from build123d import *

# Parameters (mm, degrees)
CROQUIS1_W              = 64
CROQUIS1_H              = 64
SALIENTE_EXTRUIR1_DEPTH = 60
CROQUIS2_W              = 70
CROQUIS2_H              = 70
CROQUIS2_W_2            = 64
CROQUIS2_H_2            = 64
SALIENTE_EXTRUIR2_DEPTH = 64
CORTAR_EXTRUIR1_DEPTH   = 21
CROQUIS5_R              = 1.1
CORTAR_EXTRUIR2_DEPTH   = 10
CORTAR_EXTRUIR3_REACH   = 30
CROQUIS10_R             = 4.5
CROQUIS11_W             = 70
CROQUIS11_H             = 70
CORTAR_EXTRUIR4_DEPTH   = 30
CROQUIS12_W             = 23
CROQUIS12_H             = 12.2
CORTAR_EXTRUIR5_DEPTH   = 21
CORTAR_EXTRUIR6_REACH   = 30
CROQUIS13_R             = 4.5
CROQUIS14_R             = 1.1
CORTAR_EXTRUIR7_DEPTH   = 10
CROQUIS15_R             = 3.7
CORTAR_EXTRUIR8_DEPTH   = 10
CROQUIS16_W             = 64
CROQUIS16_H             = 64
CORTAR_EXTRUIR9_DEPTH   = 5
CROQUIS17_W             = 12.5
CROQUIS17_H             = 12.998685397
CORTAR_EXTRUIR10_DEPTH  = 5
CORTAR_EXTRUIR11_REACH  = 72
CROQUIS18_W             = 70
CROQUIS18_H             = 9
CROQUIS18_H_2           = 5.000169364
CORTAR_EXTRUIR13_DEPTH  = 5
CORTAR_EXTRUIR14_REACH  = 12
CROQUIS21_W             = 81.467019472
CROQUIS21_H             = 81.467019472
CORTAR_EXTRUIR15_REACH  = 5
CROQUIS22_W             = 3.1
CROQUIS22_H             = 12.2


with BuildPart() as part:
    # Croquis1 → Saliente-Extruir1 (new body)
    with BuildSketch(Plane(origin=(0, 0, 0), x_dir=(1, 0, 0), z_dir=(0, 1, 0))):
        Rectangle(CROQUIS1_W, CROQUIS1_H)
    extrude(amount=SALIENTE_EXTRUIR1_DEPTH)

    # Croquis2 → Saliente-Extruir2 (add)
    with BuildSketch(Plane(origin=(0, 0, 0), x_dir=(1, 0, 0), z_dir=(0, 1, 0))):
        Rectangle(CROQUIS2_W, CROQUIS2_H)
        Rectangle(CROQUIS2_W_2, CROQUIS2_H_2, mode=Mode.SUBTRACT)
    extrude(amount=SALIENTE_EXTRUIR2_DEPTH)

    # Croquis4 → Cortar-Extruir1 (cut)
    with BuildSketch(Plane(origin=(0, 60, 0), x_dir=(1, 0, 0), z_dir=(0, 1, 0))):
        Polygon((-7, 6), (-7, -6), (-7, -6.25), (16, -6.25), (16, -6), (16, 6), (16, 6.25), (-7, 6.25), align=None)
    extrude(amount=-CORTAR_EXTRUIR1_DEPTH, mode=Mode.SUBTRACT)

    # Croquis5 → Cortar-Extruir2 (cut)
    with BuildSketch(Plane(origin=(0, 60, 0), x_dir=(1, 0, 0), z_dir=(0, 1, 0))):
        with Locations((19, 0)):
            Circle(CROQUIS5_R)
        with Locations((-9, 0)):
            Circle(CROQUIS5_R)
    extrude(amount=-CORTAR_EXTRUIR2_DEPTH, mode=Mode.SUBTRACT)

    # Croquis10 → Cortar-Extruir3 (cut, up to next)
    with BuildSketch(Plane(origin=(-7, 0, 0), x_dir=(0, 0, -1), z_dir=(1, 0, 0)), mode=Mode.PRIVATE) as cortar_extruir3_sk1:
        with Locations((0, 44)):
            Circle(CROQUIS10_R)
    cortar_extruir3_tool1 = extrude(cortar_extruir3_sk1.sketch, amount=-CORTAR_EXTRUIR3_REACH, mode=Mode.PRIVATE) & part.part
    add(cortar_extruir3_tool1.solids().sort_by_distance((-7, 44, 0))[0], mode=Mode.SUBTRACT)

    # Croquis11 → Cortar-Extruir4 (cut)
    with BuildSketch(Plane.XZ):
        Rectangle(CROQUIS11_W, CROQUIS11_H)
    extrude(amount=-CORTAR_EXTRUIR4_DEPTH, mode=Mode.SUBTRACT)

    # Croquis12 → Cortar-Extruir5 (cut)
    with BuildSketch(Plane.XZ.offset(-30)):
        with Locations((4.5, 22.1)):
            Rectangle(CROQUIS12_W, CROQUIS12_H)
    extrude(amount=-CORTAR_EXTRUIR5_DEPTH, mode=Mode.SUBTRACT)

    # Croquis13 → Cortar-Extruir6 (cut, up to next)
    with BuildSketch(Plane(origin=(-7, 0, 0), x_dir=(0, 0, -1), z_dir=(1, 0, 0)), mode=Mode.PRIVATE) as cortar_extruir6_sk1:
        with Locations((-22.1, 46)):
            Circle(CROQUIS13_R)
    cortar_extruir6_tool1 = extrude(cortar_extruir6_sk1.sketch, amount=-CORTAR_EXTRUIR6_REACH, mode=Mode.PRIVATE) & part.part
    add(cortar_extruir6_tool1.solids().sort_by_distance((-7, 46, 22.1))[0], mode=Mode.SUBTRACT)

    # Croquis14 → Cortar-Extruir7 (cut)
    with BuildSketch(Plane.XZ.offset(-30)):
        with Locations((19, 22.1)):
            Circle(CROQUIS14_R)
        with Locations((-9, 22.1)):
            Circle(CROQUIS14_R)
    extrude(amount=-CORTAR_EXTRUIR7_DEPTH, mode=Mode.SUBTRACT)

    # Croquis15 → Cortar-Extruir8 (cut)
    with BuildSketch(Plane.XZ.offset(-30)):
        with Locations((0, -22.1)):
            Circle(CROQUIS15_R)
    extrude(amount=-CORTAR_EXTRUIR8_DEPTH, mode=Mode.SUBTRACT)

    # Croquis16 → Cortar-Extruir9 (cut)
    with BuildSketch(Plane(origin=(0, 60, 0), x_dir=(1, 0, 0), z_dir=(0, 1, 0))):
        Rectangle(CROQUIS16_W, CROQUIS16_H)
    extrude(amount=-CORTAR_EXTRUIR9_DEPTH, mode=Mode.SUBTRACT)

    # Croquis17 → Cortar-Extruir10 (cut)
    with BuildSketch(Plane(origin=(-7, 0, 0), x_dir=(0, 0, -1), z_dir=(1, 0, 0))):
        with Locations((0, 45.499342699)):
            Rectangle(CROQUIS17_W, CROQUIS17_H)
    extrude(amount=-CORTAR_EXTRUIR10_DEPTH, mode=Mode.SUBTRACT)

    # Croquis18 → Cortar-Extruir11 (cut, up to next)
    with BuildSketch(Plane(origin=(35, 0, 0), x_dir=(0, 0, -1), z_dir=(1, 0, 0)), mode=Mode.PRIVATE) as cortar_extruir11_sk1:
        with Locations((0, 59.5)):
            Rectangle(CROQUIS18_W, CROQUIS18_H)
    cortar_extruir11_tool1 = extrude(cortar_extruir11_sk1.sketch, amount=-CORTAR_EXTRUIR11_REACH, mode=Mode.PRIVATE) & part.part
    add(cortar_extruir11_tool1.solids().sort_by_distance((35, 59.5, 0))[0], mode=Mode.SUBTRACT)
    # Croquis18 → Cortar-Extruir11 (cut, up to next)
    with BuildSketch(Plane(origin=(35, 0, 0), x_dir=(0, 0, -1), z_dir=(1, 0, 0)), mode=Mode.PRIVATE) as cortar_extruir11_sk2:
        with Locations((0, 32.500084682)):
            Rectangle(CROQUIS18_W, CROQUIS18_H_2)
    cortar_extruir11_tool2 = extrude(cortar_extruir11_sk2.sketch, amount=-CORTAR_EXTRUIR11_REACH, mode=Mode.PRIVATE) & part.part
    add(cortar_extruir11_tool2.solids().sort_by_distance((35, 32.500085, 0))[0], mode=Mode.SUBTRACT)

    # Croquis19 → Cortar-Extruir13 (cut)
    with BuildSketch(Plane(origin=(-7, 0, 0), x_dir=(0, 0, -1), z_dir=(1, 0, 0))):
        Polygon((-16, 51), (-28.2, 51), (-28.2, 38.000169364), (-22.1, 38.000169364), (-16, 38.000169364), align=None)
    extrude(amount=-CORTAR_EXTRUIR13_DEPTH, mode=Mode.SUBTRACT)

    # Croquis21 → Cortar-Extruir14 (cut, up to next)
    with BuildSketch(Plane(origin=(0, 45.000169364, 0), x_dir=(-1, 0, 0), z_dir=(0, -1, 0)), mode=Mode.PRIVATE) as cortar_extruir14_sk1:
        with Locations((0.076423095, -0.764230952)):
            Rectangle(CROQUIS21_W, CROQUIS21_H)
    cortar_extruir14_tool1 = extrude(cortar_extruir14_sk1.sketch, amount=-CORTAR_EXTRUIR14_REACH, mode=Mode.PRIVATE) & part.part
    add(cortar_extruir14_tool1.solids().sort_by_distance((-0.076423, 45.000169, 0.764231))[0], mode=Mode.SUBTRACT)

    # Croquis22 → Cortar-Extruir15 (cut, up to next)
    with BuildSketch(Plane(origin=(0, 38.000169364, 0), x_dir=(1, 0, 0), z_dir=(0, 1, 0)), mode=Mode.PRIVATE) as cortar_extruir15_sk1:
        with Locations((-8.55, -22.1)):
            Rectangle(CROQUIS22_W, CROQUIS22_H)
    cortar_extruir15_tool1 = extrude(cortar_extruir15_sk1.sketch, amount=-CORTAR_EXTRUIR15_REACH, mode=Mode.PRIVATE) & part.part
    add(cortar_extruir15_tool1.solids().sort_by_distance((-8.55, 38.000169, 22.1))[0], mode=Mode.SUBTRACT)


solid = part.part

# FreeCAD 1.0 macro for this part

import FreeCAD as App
import Part
import Sketcher

V = App.Vector
Q = App.Units.Quantity


def add_polygon(sketch, points):
    """Adds a closed chain of lines whose ends are joined by coincident constraints."""
    first, n = sketch.GeometryCount, len(points)
    for a, b in zip(points, points[1:] + points[:1]):
        sketch.addGeometry(Part.LineSegment(App.Vector(*a, 0), App.Vector(*b, 0)), False)
    for i in range(n):
        sketch.addConstraint(Sketcher.Constraint("Coincident", first + i, 2, first + (i + 1) % n, 1))

doc = App.newDocument("Part")
params = doc.addObject("Spreadsheet::Sheet", "Params")
for row, (alias, value) in enumerate([
    ("sketch1_width", "64 mm"),
    ("pad1_length", "60 mm"),
    ("sketch2_width", "70 mm"),
    ("sketch2_width2", "64 mm"),
    ("pad2_length", "64 mm"),
    ("sketch3_width", "23 mm"),
    ("sketch3_height", "12.5 mm"),
    ("pocket1_length", "21 mm"),
    ("sketch4_diameter", "2.2 mm"),
    ("pocket2_length", "10 mm"),
    ("sketch5_diameter", "9 mm"),
    ("sketch6_width", "70 mm"),
    ("pocket4_length", "30 mm"),
    ("sketch7_width", "23 mm"),
    ("sketch7_height", "12.2 mm"),
    ("pocket5_length", "21 mm"),
    ("sketch8_diameter", "9 mm"),
    ("sketch9_diameter", "2.2 mm"),
    ("pocket7_length", "10 mm"),
    ("sketch10_diameter", "7.4 mm"),
    ("pocket8_length", "10 mm"),
    ("sketch11_width", "64 mm"),
    ("pocket9_length", "5 mm"),
    ("sketch12_height", "12.5 mm"),
    ("pocket10_length", "5 mm"),
    ("sketch13_width", "9 mm"),
    ("sketch13_height", "70 mm"),
    ("pocket11_length", "70 mm"),
    ("sketch14_height", "70 mm"),
    ("sketch15_height", "12.2 mm"),
    ("pocket13_length", "5 mm"),
    ("pocket14_length", "9.999831 mm"),
    ("sketch17_width", "3.1 mm"),
    ("sketch17_height", "12.2 mm"),
    ("pocket15_length", "3 mm"),
], start=1):
    params.set(f"A{row}", alias)
    params.set(f"B{row}", "=" + value)
    params.setAlias(f"B{row}", alias)

body = doc.addObject("PartDesign::Body", "Body")

# Sketch on XZ plane
sketch1 = doc.addObject("Sketcher::SketchObject", "Sketch")
body.addObject(sketch1)
sketch1.AttachmentSupport = (doc.XZ_Plane, [""])
sketch1.MapMode = "FlatFace"
add_polygon(sketch1, [(-32, -32), (-32, 32), (32, 32), (32, -32)])  # lines 0-3
sketch1.addConstraint([
    Sketcher.Constraint("Vertical", 0),
    Sketcher.Constraint("Horizontal", 1),
    Sketcher.Constraint("Vertical", 2),
    Sketcher.Constraint("Horizontal", 3),
    Sketcher.Constraint("Symmetric", 0, 2, 2, 2, -1, 1),
    Sketcher.Constraint("Equal", 3, 0),
    Sketcher.Constraint("DistanceX", 1, 1, 1, 2, Q("64 mm")),
])
sketch1.setExpression("Constraints[10]", "Params.sketch1_width")
pad1 = doc.addObject("PartDesign::Pad", "Pad")
body.addObject(pad1)
pad1.Profile = sketch1
pad1.setExpression("Length", "Params.pad1_length")
pad1.Reversed = True

# Sketch on XZ plane
sketch2 = doc.addObject("Sketcher::SketchObject", "Sketch001")
body.addObject(sketch2)
sketch2.AttachmentSupport = (doc.XZ_Plane, [""])
sketch2.MapMode = "FlatFace"
add_polygon(sketch2, [(-35, -35), (-35, 35), (35, 35), (35, -35)])  # lines 0-3
add_polygon(sketch2, [(32, 32), (-32, 32), (-32, -32), (32, -32)])  # lines 4-7
sketch2.addConstraint([
    Sketcher.Constraint("Vertical", 0),
    Sketcher.Constraint("Horizontal", 1),
    Sketcher.Constraint("Vertical", 2),
    Sketcher.Constraint("Horizontal", 3),
    Sketcher.Constraint("Horizontal", 4),
    Sketcher.Constraint("Vertical", 5),
    Sketcher.Constraint("Horizontal", 6),
    Sketcher.Constraint("Vertical", 7),
    Sketcher.Constraint("Symmetric", 0, 2, 2, 2, -1, 1),
    Sketcher.Constraint("Symmetric", 4, 2, 6, 2, -1, 1),
    Sketcher.Constraint("Equal", 3, 0),
    Sketcher.Constraint("Equal", 6, 5),
    Sketcher.Constraint("DistanceX", 1, 1, 1, 2, Q("70 mm")),
    Sketcher.Constraint("DistanceX", 4, 2, 4, 1, Q("64 mm")),
])
sketch2.setExpression("Constraints[20]", "Params.sketch2_width")
sketch2.setExpression("Constraints[21]", "Params.sketch2_width2")
pad2 = doc.addObject("PartDesign::Pad", "Pad001")
body.addObject(pad2)
pad2.Profile = sketch2
pad2.setExpression("Length", "Params.pad2_length")
pad2.Reversed = True

# Sketch on XZ plane
sketch3 = doc.addObject("Sketcher::SketchObject", "Sketch002")
body.addObject(sketch3)
sketch3.AttachmentSupport = (doc.XZ_Plane, [""])
sketch3.MapMode = "FlatFace"
sketch3.AttachmentOffset = App.Placement(V(0, 0, -60), App.Rotation())
add_polygon(sketch3, [(-7, 6.25), (16, 6.25), (16, -6.25), (-7, -6.25)])  # lines 0-3
sketch3.addConstraint([
    Sketcher.Constraint("Horizontal", 0),
    Sketcher.Constraint("Vertical", 1),
    Sketcher.Constraint("Horizontal", 2),
    Sketcher.Constraint("Vertical", 3),
    Sketcher.Constraint("DistanceX", 0, 1, 0, 2, Q("23 mm")),
    Sketcher.Constraint("DistanceY", 1, 2, 1, 1, Q("12.5 mm")),
    Sketcher.Constraint("DistanceX", -1, 1, 0, 2, Q("16 mm")),
    Sketcher.Constraint("DistanceY", -1, 1, 0, 2, Q("6.25 mm")),
])
sketch3.setExpression("Constraints[8]", "Params.sketch3_width")
sketch3.setExpression("Constraints[9]", "Params.sketch3_height")
pocket1 = doc.addObject("PartDesign::Pocket", "Pocket")
body.addObject(pocket1)
pocket1.Profile = sketch3
pocket1.setExpression("Length", "Params.pocket1_length")
pocket1.Reversed = True

# Sketch on XZ plane
sketch4 = doc.addObject("Sketcher::SketchObject", "Sketch003")
body.addObject(sketch4)
sketch4.AttachmentSupport = (doc.XZ_Plane, [""])
sketch4.MapMode = "FlatFace"
sketch4.AttachmentOffset = App.Placement(V(0, 0, -60), App.Rotation())
sketch4.addGeometry([
    Part.Circle(V(19, 0, 0), V(0, 0, 1), 1.1),
    Part.Circle(V(-9, 0, 0), V(0, 0, 1), 1.1),
], False)
sketch4.addConstraint([
    Sketcher.Constraint("Equal", 0, 1),
    Sketcher.Constraint("PointOnObject", 0, 3, -1),
    Sketcher.Constraint("PointOnObject", 1, 3, -1),
    Sketcher.Constraint("Diameter", 0, Q("2.2 mm")),
    Sketcher.Constraint("DistanceX", -1, 1, 0, 3, Q("19 mm")),
    Sketcher.Constraint("DistanceX", 1, 3, -1, 1, Q("9 mm")),
])
sketch4.setExpression("Constraints[3]", "Params.sketch4_diameter")
pocket2 = doc.addObject("PartDesign::Pocket", "Pocket001")
body.addObject(pocket2)
pocket2.Profile = sketch4
pocket2.setExpression("Length", "Params.pocket2_length")
pocket2.Reversed = True

# Sketch on YZ plane
sketch5 = doc.addObject("Sketcher::SketchObject", "Sketch004")
body.addObject(sketch5)
sketch5.AttachmentSupport = (doc.YZ_Plane, [""])
sketch5.MapMode = "FlatFace"
sketch5.AttachmentOffset = App.Placement(V(0, 0, -7), App.Rotation())
sketch5.addGeometry(Part.Circle(V(44, 0, 0), V(0, 0, 1), 4.5), False)
sketch5.addConstraint([
    Sketcher.Constraint("PointOnObject", 0, 3, -1),
    Sketcher.Constraint("Diameter", 0, Q("9 mm")),
    Sketcher.Constraint("DistanceX", -1, 1, 0, 3, Q("44 mm")),
])
sketch5.setExpression("Constraints[1]", "Params.sketch5_diameter")
pocket3 = doc.addObject("PartDesign::Pocket", "Pocket002")
body.addObject(pocket3)
pocket3.Profile = sketch5
pocket3.Type = "UpToFirst"

# Sketch on XZ plane
sketch6 = doc.addObject("Sketcher::SketchObject", "Sketch005")
body.addObject(sketch6)
sketch6.AttachmentSupport = (doc.XZ_Plane, [""])
sketch6.MapMode = "FlatFace"
add_polygon(sketch6, [(-35, 35), (-35, -35), (35, -35), (35, 35)])  # lines 0-3
sketch6.addConstraint([
    Sketcher.Constraint("Vertical", 0),
    Sketcher.Constraint("Horizontal", 1),
    Sketcher.Constraint("Vertical", 2),
    Sketcher.Constraint("Horizontal", 3),
    Sketcher.Constraint("Symmetric", 0, 2, 2, 2, -1, 1),
    Sketcher.Constraint("Equal", 3, 0),
    Sketcher.Constraint("DistanceX", 1, 1, 1, 2, Q("70 mm")),
])
sketch6.setExpression("Constraints[10]", "Params.sketch6_width")
pocket4 = doc.addObject("PartDesign::Pocket", "Pocket003")
body.addObject(pocket4)
pocket4.Profile = sketch6
pocket4.setExpression("Length", "Params.pocket4_length")

# Sketch on XZ plane
sketch7 = doc.addObject("Sketcher::SketchObject", "Sketch006")
body.addObject(sketch7)
sketch7.AttachmentSupport = (doc.XZ_Plane, [""])
sketch7.MapMode = "FlatFace"
sketch7.AttachmentOffset = App.Placement(V(0, 0, -30), App.Rotation())
add_polygon(sketch7, [(-7, 28.2), (-7, 16), (16, 16), (16, 28.2)])  # lines 0-3
sketch7.addConstraint([
    Sketcher.Constraint("Vertical", 0),
    Sketcher.Constraint("Horizontal", 1),
    Sketcher.Constraint("Vertical", 2),
    Sketcher.Constraint("Horizontal", 3),
    Sketcher.Constraint("DistanceX", 1, 1, 1, 2, Q("23 mm")),
    Sketcher.Constraint("DistanceY", 0, 2, 0, 1, Q("12.2 mm")),
    Sketcher.Constraint("DistanceX", 0, 2, -1, 1, Q("7 mm")),
    Sketcher.Constraint("DistanceY", -1, 1, 0, 2, Q("16 mm")),
])
sketch7.setExpression("Constraints[8]", "Params.sketch7_width")
sketch7.setExpression("Constraints[9]", "Params.sketch7_height")
pocket5 = doc.addObject("PartDesign::Pocket", "Pocket004")
body.addObject(pocket5)
pocket5.Profile = sketch7
pocket5.setExpression("Length", "Params.pocket5_length")

# Sketch on YZ plane
sketch8 = doc.addObject("Sketcher::SketchObject", "Sketch007")
body.addObject(sketch8)
sketch8.AttachmentSupport = (doc.YZ_Plane, [""])
sketch8.MapMode = "FlatFace"
sketch8.AttachmentOffset = App.Placement(V(0, 0, -7), App.Rotation())
sketch8.addGeometry(Part.Circle(V(46, 22.1, 0), V(0, 0, 1), 4.5), False)
sketch8.addConstraint([
    Sketcher.Constraint("Diameter", 0, Q("9 mm")),
    Sketcher.Constraint("DistanceX", -1, 1, 0, 3, Q("46 mm")),
    Sketcher.Constraint("DistanceY", -1, 1, 0, 3, Q("22.1 mm")),
])
sketch8.setExpression("Constraints[0]", "Params.sketch8_diameter")
pocket6 = doc.addObject("PartDesign::Pocket", "Pocket005")
body.addObject(pocket6)
pocket6.Profile = sketch8
pocket6.Type = "UpToFirst"

# Sketch on XZ plane
sketch9 = doc.addObject("Sketcher::SketchObject", "Sketch008")
body.addObject(sketch9)
sketch9.AttachmentSupport = (doc.XZ_Plane, [""])
sketch9.MapMode = "FlatFace"
sketch9.AttachmentOffset = App.Placement(V(0, 0, -30), App.Rotation())
sketch9.addGeometry([
    Part.Circle(V(19, 22.1, 0), V(0, 0, 1), 1.1),
    Part.Circle(V(-9, 22.1, 0), V(0, 0, 1), 1.1),
], False)
sketch9.addConstraint([
    Sketcher.Constraint("Equal", 0, 1),
    Sketcher.Constraint("Horizontal", 0, 3, 1, 3),
    Sketcher.Constraint("Diameter", 0, Q("2.2 mm")),
    Sketcher.Constraint("DistanceX", -1, 1, 0, 3, Q("19 mm")),
    Sketcher.Constraint("DistanceX", 1, 3, -1, 1, Q("9 mm")),
    Sketcher.Constraint("DistanceY", -1, 1, 0, 3, Q("22.1 mm")),
])
sketch9.setExpression("Constraints[2]", "Params.sketch9_diameter")
pocket7 = doc.addObject("PartDesign::Pocket", "Pocket006")
body.addObject(pocket7)
pocket7.Profile = sketch9
pocket7.setExpression("Length", "Params.pocket7_length")

# Sketch on XZ plane
sketch10 = doc.addObject("Sketcher::SketchObject", "Sketch009")
body.addObject(sketch10)
sketch10.AttachmentSupport = (doc.XZ_Plane, [""])
sketch10.MapMode = "FlatFace"
sketch10.AttachmentOffset = App.Placement(V(0, 0, -30), App.Rotation())
sketch10.addGeometry(Part.Circle(V(0, -22.1, 0), V(0, 0, 1), 3.7), False)
sketch10.addConstraint([
    Sketcher.Constraint("PointOnObject", 0, 3, -2),
    Sketcher.Constraint("Diameter", 0, Q("7.4 mm")),
    Sketcher.Constraint("DistanceY", 0, 3, -1, 1, Q("22.1 mm")),
])
sketch10.setExpression("Constraints[1]", "Params.sketch10_diameter")
pocket8 = doc.addObject("PartDesign::Pocket", "Pocket007")
body.addObject(pocket8)
pocket8.Profile = sketch10
pocket8.setExpression("Length", "Params.pocket8_length")

# Sketch on XZ plane
sketch11 = doc.addObject("Sketcher::SketchObject", "Sketch010")
body.addObject(sketch11)
sketch11.AttachmentSupport = (doc.XZ_Plane, [""])
sketch11.MapMode = "FlatFace"
sketch11.AttachmentOffset = App.Placement(V(0, 0, -60), App.Rotation())
add_polygon(sketch11, [(-32, -32), (-32, 32), (32, 32), (32, -32)])  # lines 0-3
sketch11.addConstraint([
    Sketcher.Constraint("Vertical", 0),
    Sketcher.Constraint("Horizontal", 1),
    Sketcher.Constraint("Vertical", 2),
    Sketcher.Constraint("Horizontal", 3),
    Sketcher.Constraint("Symmetric", 0, 2, 2, 2, -1, 1),
    Sketcher.Constraint("Equal", 3, 0),
    Sketcher.Constraint("DistanceX", 1, 1, 1, 2, Q("64 mm")),
])
sketch11.setExpression("Constraints[10]", "Params.sketch11_width")
pocket9 = doc.addObject("PartDesign::Pocket", "Pocket008")
body.addObject(pocket9)
pocket9.Profile = sketch11
pocket9.setExpression("Length", "Params.pocket9_length")
pocket9.Reversed = True

# Sketch on YZ plane
sketch12 = doc.addObject("Sketcher::SketchObject", "Sketch011")
body.addObject(sketch12)
sketch12.AttachmentSupport = (doc.YZ_Plane, [""])
sketch12.MapMode = "FlatFace"
sketch12.AttachmentOffset = App.Placement(V(0, 0, -7), App.Rotation())
add_polygon(sketch12, [(51.998685, 6.25), (39, 6.25), (39, -6.25), (51.998685, -6.25)])  # lines 0-3
sketch12.addConstraint([
    Sketcher.Constraint("Horizontal", 0),
    Sketcher.Constraint("Vertical", 1),
    Sketcher.Constraint("Horizontal", 2),
    Sketcher.Constraint("Vertical", 3),
    Sketcher.Constraint("DistanceY", 1, 2, 1, 1, Q("12.5 mm")),
    Sketcher.Constraint("DistanceX", -1, 1, 0, 2, Q("39 mm")),
    Sketcher.Constraint("DistanceY", -1, 1, 0, 2, Q("6.25 mm")),
    Sketcher.Constraint("DistanceX", 0, 2, 0, 1, Q("12.998685 mm")),
])
sketch12.setExpression("Constraints[8]", "Params.sketch12_height")
pocket10 = doc.addObject("PartDesign::Pocket", "Pocket009")
body.addObject(pocket10)
pocket10.Profile = sketch12
pocket10.setExpression("Length", "Params.pocket10_length")

# Sketch on YZ plane
sketch13 = doc.addObject("Sketcher::SketchObject", "Sketch012")
body.addObject(sketch13)
sketch13.AttachmentSupport = (doc.YZ_Plane, [""])
sketch13.MapMode = "FlatFace"
sketch13.AttachmentOffset = App.Placement(V(0, 0, 35), App.Rotation())
add_polygon(sketch13, [(64, 35), (55, 35), (55, -35), (64, -35)])  # lines 0-3
sketch13.addConstraint([
    Sketcher.Constraint("Horizontal", 0),
    Sketcher.Constraint("Vertical", 1),
    Sketcher.Constraint("Horizontal", 2),
    Sketcher.Constraint("Vertical", 3),
    Sketcher.Constraint("DistanceX", 0, 2, 0, 1, Q("9 mm")),
    Sketcher.Constraint("DistanceY", 1, 2, 1, 1, Q("70 mm")),
    Sketcher.Constraint("DistanceX", -1, 1, 0, 2, Q("55 mm")),
    Sketcher.Constraint("DistanceY", -1, 1, 0, 2, Q("35 mm")),
])
sketch13.setExpression("Constraints[8]", "Params.sketch13_width")
sketch13.setExpression("Constraints[9]", "Params.sketch13_height")
pocket11 = doc.addObject("PartDesign::Pocket", "Pocket010")
body.addObject(pocket11)
pocket11.Profile = sketch13
pocket11.setExpression("Length", "Params.pocket11_length")

# Sketch on YZ plane
sketch14 = doc.addObject("Sketcher::SketchObject", "Sketch013")
body.addObject(sketch14)
sketch14.AttachmentSupport = (doc.YZ_Plane, [""])
sketch14.MapMode = "FlatFace"
sketch14.AttachmentOffset = App.Placement(V(0, 0, 35), App.Rotation())
add_polygon(sketch14, [(35.000169, 35), (30, 35), (30, -35), (35.000169, -35)])  # lines 0-3
sketch14.addConstraint([
    Sketcher.Constraint("Horizontal", 0),
    Sketcher.Constraint("Vertical", 1),
    Sketcher.Constraint("Horizontal", 2),
    Sketcher.Constraint("Vertical", 3),
    Sketcher.Constraint("DistanceY", 1, 2, 1, 1, Q("70 mm")),
    Sketcher.Constraint("DistanceX", -1, 1, 0, 2, Q("30 mm")),
    Sketcher.Constraint("DistanceY", -1, 1, 0, 2, Q("35 mm")),
    Sketcher.Constraint("DistanceX", 0, 2, 0, 1, Q("5.000169 mm")),
])
sketch14.setExpression("Constraints[8]", "Params.sketch14_height")
pocket12 = doc.addObject("PartDesign::Pocket", "Pocket011")
body.addObject(pocket12)
pocket12.Profile = sketch14
pocket12.Type = "UpToFirst"

# Sketch on YZ plane
sketch15 = doc.addObject("Sketcher::SketchObject", "Sketch014")
body.addObject(sketch15)
sketch15.AttachmentSupport = (doc.YZ_Plane, [""])
sketch15.MapMode = "FlatFace"
sketch15.AttachmentOffset = App.Placement(V(0, 0, -7), App.Rotation())
add_polygon(sketch15, [(51, 16), (51, 28.2), (38.000169, 28.2), (38.000169, 16)])  # lines 0-3
sketch15.addConstraint([
    Sketcher.Constraint("Vertical", 0),
    Sketcher.Constraint("Horizontal", 1),
    Sketcher.Constraint("Vertical", 2),
    Sketcher.Constraint("Horizontal", 3),
    Sketcher.Constraint("DistanceY", 0, 1, 0, 2, Q("12.2 mm")),
    Sketcher.Constraint("DistanceX", -1, 1, 0, 2, Q("51 mm")),
    Sketcher.Constraint("DistanceY", -1, 1, 2, 2, Q("16 mm")),
    Sketcher.Constraint("DistanceX", 1, 2, 1, 1, Q("12.999831 mm")),
])
sketch15.setExpression("Constraints[8]", "Params.sketch15_height")
pocket13 = doc.addObject("PartDesign::Pocket", "Pocket012")
body.addObject(pocket13)
pocket13.Profile = sketch15
pocket13.setExpression("Length", "Params.pocket13_length")

# Sketch on XZ plane
sketch16 = doc.addObject("Sketcher::SketchObject", "Sketch015")
body.addObject(sketch16)
sketch16.AttachmentSupport = (doc.XZ_Plane, [""])
sketch16.MapMode = "FlatFace"
sketch16.AttachmentOffset = App.Placement(V(0, 0, -45.000169), App.Rotation())
add_polygon(sketch16, [(40.657087, -39.969279), (40.657087, 41.497741), (-40.809933, 41.497741), (-40.809933, -39.969279)])  # lines 0-3
sketch16.addConstraint([
    Sketcher.Constraint("Vertical", 0),
    Sketcher.Constraint("Horizontal", 1),
    Sketcher.Constraint("Vertical", 2),
    Sketcher.Constraint("Horizontal", 3),
    Sketcher.Constraint("Equal", 3, 0),
    Sketcher.Constraint("DistanceX", 1, 2, 1, 1, Q("81.467019 mm")),
    Sketcher.Constraint("DistanceY", -1, 1, 0, 2, Q("41.497741 mm")),
    Sketcher.Constraint("DistanceX", -1, 1, 0, 2, Q("40.657087 mm")),
])
pocket14 = doc.addObject("PartDesign::Pocket", "Pocket013")
body.addObject(pocket14)
pocket14.Profile = sketch16
pocket14.setExpression("Length", "Params.pocket14_length")

# Sketch on XZ plane
sketch17 = doc.addObject("Sketcher::SketchObject", "Sketch016")
body.addObject(sketch17)
sketch17.AttachmentSupport = (doc.XZ_Plane, [""])
sketch17.MapMode = "FlatFace"
sketch17.AttachmentOffset = App.Placement(V(0, 0, -38.000169), App.Rotation())
add_polygon(sketch17, [(-10.1, 16), (-10.1, 28.2), (-7, 28.2), (-7, 16)])  # lines 0-3
sketch17.addConstraint([
    Sketcher.Constraint("Vertical", 0),
    Sketcher.Constraint("Horizontal", 1),
    Sketcher.Constraint("Vertical", 2),
    Sketcher.Constraint("Horizontal", 3),
    Sketcher.Constraint("DistanceX", 1, 1, 1, 2, Q("3.1 mm")),
    Sketcher.Constraint("DistanceY", 0, 1, 0, 2, Q("12.2 mm")),
    Sketcher.Constraint("DistanceX", 1, 2, -1, 1, Q("7 mm")),
    Sketcher.Constraint("DistanceY", -1, 1, 2, 2, Q("16 mm")),
])
sketch17.setExpression("Constraints[8]", "Params.sketch17_width")
sketch17.setExpression("Constraints[9]", "Params.sketch17_height")
pocket15 = doc.addObject("PartDesign::Pocket", "Pocket014")
body.addObject(pocket15)
pocket15.Profile = sketch17
pocket15.setExpression("Length", "Params.pocket15_length")
pocket15.Reversed = True

doc.recompute()
